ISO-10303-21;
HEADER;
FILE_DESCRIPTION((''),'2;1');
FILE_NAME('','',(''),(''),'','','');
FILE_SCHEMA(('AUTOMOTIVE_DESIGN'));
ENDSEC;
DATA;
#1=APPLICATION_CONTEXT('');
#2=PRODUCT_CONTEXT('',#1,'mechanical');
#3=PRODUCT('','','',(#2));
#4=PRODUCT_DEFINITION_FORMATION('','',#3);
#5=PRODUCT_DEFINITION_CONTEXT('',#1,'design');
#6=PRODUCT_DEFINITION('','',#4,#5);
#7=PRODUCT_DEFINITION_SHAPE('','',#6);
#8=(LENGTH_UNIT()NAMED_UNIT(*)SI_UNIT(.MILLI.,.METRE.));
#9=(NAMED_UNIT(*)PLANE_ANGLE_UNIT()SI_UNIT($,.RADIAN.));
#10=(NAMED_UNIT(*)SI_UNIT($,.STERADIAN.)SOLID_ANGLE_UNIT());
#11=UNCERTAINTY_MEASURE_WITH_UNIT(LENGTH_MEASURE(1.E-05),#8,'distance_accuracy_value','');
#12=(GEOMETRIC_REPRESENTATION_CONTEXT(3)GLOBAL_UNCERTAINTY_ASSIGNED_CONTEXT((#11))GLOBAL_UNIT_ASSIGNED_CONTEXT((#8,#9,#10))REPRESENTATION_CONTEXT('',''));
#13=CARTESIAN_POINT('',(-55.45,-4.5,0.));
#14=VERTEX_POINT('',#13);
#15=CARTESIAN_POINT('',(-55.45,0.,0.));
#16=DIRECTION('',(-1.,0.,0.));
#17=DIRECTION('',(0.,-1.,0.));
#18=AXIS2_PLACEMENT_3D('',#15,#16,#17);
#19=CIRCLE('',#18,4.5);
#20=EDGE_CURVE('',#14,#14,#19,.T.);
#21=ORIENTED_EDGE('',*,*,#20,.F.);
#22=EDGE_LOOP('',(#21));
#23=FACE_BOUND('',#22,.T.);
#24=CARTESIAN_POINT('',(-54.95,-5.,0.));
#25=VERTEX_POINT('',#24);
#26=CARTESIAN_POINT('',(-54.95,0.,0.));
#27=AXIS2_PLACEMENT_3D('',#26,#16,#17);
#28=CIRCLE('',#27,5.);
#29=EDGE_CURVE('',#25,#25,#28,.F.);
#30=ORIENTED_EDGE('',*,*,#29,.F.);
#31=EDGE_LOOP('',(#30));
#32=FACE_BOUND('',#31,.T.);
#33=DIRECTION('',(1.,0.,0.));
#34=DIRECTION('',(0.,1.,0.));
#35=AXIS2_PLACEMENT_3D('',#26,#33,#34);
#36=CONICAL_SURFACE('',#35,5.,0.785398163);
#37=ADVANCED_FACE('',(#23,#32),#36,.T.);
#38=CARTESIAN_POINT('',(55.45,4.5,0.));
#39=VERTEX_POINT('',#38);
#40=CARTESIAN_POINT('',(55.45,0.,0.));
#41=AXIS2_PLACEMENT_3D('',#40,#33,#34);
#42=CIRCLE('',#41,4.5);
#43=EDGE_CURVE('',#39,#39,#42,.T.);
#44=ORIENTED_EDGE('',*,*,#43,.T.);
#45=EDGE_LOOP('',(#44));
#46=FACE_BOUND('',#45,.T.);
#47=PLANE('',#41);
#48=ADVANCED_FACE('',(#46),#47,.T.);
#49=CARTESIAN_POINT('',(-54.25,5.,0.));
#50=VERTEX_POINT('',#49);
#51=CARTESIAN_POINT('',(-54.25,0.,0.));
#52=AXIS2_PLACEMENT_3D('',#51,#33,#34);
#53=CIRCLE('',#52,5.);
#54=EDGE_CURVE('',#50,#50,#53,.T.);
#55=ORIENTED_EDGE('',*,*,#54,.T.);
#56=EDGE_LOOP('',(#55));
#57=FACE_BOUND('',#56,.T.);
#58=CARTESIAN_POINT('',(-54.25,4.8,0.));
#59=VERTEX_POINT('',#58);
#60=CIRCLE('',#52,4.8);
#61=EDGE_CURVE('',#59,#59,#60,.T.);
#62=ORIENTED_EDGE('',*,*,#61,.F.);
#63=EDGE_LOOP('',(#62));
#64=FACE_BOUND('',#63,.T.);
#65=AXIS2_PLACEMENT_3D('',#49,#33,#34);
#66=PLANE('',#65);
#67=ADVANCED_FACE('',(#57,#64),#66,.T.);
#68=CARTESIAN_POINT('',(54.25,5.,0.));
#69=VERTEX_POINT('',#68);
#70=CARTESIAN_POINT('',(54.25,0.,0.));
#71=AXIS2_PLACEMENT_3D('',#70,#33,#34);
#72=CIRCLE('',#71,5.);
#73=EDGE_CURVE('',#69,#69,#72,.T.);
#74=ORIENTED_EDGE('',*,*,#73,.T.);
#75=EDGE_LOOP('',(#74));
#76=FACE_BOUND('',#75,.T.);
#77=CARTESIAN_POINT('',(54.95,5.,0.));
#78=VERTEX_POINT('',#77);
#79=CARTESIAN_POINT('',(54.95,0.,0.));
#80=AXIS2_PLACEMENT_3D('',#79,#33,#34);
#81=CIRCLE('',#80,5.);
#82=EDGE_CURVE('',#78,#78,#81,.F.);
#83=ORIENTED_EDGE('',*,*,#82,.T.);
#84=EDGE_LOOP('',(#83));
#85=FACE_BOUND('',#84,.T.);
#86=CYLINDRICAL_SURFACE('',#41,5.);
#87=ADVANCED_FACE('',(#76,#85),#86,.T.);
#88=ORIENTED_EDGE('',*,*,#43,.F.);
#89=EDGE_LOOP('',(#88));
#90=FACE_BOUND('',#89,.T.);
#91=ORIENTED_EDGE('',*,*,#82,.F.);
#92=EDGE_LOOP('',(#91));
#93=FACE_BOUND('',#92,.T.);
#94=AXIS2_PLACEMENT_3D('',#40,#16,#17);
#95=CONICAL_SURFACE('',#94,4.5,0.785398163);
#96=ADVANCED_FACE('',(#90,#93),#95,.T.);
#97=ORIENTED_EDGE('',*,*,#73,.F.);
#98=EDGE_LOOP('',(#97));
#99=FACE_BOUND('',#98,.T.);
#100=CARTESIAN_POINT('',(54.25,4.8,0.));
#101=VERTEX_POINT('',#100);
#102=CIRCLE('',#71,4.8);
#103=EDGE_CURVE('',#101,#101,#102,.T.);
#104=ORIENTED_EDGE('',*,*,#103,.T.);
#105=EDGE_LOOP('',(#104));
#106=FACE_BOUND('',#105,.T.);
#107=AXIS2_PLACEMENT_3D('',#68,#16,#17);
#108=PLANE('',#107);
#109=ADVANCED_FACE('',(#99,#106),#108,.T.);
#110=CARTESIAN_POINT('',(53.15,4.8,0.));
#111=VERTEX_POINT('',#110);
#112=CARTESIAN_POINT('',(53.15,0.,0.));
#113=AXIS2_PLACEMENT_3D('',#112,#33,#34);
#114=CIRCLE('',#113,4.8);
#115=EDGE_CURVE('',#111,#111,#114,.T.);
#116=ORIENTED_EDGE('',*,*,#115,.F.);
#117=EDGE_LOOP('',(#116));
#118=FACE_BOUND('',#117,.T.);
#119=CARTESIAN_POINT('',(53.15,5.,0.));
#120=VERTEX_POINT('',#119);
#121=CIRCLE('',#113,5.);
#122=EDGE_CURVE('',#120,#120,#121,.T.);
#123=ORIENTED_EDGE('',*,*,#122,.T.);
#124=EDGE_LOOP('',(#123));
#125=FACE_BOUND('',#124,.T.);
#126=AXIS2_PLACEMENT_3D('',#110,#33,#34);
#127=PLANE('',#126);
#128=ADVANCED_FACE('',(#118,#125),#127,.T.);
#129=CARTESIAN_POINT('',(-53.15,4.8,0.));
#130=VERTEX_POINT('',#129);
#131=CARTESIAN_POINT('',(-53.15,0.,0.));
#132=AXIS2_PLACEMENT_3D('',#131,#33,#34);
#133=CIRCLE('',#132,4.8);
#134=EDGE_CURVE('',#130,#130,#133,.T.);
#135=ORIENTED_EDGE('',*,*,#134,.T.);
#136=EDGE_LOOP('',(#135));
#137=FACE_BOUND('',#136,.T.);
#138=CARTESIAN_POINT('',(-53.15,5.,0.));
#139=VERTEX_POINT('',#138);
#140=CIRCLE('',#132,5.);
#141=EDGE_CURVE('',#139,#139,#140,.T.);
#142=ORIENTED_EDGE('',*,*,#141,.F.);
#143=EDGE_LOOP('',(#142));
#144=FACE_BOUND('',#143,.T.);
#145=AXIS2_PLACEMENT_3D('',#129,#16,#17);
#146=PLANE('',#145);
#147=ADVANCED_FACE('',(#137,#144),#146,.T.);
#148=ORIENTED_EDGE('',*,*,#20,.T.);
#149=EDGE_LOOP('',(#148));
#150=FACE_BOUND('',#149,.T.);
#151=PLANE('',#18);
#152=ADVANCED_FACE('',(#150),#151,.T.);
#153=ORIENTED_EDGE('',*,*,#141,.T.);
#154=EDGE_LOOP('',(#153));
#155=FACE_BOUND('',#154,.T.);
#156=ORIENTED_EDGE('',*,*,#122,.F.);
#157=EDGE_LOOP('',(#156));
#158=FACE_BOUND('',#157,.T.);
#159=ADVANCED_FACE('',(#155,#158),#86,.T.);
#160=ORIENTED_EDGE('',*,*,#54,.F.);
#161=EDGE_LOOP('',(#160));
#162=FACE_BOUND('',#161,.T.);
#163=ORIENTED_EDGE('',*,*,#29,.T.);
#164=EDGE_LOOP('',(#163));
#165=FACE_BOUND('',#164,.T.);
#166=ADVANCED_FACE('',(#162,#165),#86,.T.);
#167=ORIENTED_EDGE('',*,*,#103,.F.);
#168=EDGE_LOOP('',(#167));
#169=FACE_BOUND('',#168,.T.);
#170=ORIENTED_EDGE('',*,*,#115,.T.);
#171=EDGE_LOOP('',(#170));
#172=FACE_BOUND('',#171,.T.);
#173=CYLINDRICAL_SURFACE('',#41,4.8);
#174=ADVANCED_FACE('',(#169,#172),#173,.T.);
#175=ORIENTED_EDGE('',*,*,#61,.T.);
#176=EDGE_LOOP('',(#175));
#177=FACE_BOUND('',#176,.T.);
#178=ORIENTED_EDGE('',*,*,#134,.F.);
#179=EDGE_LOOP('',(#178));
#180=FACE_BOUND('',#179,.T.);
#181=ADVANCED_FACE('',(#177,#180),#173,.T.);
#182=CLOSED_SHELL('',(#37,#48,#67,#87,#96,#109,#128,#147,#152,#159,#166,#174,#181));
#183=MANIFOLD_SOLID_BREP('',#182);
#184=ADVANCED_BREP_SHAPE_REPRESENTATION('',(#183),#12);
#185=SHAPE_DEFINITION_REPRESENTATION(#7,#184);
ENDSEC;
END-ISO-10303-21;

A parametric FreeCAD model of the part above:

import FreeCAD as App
import Part
import Sketcher

V = App.Vector


def edges_at(feature, points):
    """Names of the edges that pass closest to the given points."""
    edges = feature.Shape.Edges
    near = lambda p: min(range(len(edges)), key=lambda i: edges[i].distToShape(Part.Vertex(*p))[0])
    return sorted({f"Edge{near(p) + 1}" for p in points})

doc = App.newDocument("Part")
body = doc.addObject("PartDesign::Body", "Body")

sketch1 = body.newObject("Sketcher::SketchObject", "Sketch")
sketch1.AttachmentSupport = (doc.getObject("XY_Plane"), [""])
sketch1.MapMode = "FlatFace"
sketch1.addGeometry([
    Part.LineSegment(V(55.45, 0, 0), V(55.45, 5, 0)),
    Part.LineSegment(V(55.45, 5, 0), V(54.25, 5, 0)),
    Part.LineSegment(V(54.25, 5, 0), V(54.25, 4.8, 0)),
    Part.LineSegment(V(54.25, 4.8, 0), V(53.15, 4.8, 0)),
    Part.LineSegment(V(53.15, 4.8, 0), V(53.15, 5, 0)),
    Part.LineSegment(V(53.15, 5, 0), V(-53.15, 5, 0)),
    Part.LineSegment(V(-53.15, 5, 0), V(-53.15, 4.8, 0)),
    Part.LineSegment(V(-53.15, 4.8, 0), V(-54.25, 4.8, 0)),
    Part.LineSegment(V(-54.25, 4.8, 0), V(-54.25, 5, 0)),
    Part.LineSegment(V(-54.25, 5, 0), V(-55.45, 5, 0)),
    Part.LineSegment(V(-55.45, 5, 0), V(-55.45, 0, 0)),
    Part.LineSegment(V(-55.45, 0, 0), V(55.45, 0, 0)),
], False)
sketch1.addConstraint([
    Sketcher.Constraint("Coincident", 0, 2, 1, 1),
    Sketcher.Constraint("Coincident", 1, 2, 2, 1),
    Sketcher.Constraint("Coincident", 2, 2, 3, 1),
    Sketcher.Constraint("Coincident", 3, 2, 4, 1),
    Sketcher.Constraint("Coincident", 4, 2, 5, 1),
    Sketcher.Constraint("Coincident", 5, 2, 6, 1),
    Sketcher.Constraint("Coincident", 6, 2, 7, 1),
    Sketcher.Constraint("Coincident", 7, 2, 8, 1),
    Sketcher.Constraint("Coincident", 8, 2, 9, 1),
    Sketcher.Constraint("Coincident", 9, 2, 10, 1),
    Sketcher.Constraint("Coincident", 10, 2, 11, 1),
    Sketcher.Constraint("Coincident", 11, 2, 0, 1),
    Sketcher.Constraint("Vertical", 0),
    Sketcher.Constraint("Horizontal", 1),
    Sketcher.Constraint("Vertical", 2),
    Sketcher.Constraint("Horizontal", 3),
    Sketcher.Constraint("Vertical", 4),
    Sketcher.Constraint("Horizontal", 5),
    Sketcher.Constraint("Vertical", 6),
    Sketcher.Constraint("Horizontal", 7),
    Sketcher.Constraint("Vertical", 8),
    Sketcher.Constraint("Horizontal", 9),
    Sketcher.Constraint("Vertical", 10),
    Sketcher.Constraint("Horizontal", 11),
    Sketcher.Constraint("Symmetric", 10, 2, 11, 2, -1, 1),
    Sketcher.Constraint("Symmetric", 3, 2, 6, 2, -2),
    Sketcher.Constraint("Symmetric", 1, 2, 8, 2, -2),
    Sketcher.Constraint("Horizontal", 1, 2, 4, 2),
    Sketcher.Constraint("DistanceY", 0, 1, 0, 2, 5.0),
    Sketcher.Constraint("DistanceX", 1, 2, 1, 1, 1.2),
    Sketcher.Constraint("DistanceX", 3, 2, 3, 1, 1.1),
    Sketcher.Constraint("DistanceX", 5, 2, 5, 1, 106.3),
    Sketcher.Constraint("DistanceY", 2, 2, 2, 1, 0.2),
])
revolution = body.newObject("PartDesign::Revolution", "Revolution")
revolution.Profile = sketch1
revolution.ReferenceAxis = (sketch1, ["H_Axis"])
revolution.Angle = 360
doc.recompute()

chamfer = body.newObject("PartDesign::Chamfer", "Chamfer")
chamfer.Base = (revolution, edges_at(revolution, [(-55.45, -5, 0), (55.45, -5, 0)]))
chamfer.Size = 0.5

doc.recompute()
